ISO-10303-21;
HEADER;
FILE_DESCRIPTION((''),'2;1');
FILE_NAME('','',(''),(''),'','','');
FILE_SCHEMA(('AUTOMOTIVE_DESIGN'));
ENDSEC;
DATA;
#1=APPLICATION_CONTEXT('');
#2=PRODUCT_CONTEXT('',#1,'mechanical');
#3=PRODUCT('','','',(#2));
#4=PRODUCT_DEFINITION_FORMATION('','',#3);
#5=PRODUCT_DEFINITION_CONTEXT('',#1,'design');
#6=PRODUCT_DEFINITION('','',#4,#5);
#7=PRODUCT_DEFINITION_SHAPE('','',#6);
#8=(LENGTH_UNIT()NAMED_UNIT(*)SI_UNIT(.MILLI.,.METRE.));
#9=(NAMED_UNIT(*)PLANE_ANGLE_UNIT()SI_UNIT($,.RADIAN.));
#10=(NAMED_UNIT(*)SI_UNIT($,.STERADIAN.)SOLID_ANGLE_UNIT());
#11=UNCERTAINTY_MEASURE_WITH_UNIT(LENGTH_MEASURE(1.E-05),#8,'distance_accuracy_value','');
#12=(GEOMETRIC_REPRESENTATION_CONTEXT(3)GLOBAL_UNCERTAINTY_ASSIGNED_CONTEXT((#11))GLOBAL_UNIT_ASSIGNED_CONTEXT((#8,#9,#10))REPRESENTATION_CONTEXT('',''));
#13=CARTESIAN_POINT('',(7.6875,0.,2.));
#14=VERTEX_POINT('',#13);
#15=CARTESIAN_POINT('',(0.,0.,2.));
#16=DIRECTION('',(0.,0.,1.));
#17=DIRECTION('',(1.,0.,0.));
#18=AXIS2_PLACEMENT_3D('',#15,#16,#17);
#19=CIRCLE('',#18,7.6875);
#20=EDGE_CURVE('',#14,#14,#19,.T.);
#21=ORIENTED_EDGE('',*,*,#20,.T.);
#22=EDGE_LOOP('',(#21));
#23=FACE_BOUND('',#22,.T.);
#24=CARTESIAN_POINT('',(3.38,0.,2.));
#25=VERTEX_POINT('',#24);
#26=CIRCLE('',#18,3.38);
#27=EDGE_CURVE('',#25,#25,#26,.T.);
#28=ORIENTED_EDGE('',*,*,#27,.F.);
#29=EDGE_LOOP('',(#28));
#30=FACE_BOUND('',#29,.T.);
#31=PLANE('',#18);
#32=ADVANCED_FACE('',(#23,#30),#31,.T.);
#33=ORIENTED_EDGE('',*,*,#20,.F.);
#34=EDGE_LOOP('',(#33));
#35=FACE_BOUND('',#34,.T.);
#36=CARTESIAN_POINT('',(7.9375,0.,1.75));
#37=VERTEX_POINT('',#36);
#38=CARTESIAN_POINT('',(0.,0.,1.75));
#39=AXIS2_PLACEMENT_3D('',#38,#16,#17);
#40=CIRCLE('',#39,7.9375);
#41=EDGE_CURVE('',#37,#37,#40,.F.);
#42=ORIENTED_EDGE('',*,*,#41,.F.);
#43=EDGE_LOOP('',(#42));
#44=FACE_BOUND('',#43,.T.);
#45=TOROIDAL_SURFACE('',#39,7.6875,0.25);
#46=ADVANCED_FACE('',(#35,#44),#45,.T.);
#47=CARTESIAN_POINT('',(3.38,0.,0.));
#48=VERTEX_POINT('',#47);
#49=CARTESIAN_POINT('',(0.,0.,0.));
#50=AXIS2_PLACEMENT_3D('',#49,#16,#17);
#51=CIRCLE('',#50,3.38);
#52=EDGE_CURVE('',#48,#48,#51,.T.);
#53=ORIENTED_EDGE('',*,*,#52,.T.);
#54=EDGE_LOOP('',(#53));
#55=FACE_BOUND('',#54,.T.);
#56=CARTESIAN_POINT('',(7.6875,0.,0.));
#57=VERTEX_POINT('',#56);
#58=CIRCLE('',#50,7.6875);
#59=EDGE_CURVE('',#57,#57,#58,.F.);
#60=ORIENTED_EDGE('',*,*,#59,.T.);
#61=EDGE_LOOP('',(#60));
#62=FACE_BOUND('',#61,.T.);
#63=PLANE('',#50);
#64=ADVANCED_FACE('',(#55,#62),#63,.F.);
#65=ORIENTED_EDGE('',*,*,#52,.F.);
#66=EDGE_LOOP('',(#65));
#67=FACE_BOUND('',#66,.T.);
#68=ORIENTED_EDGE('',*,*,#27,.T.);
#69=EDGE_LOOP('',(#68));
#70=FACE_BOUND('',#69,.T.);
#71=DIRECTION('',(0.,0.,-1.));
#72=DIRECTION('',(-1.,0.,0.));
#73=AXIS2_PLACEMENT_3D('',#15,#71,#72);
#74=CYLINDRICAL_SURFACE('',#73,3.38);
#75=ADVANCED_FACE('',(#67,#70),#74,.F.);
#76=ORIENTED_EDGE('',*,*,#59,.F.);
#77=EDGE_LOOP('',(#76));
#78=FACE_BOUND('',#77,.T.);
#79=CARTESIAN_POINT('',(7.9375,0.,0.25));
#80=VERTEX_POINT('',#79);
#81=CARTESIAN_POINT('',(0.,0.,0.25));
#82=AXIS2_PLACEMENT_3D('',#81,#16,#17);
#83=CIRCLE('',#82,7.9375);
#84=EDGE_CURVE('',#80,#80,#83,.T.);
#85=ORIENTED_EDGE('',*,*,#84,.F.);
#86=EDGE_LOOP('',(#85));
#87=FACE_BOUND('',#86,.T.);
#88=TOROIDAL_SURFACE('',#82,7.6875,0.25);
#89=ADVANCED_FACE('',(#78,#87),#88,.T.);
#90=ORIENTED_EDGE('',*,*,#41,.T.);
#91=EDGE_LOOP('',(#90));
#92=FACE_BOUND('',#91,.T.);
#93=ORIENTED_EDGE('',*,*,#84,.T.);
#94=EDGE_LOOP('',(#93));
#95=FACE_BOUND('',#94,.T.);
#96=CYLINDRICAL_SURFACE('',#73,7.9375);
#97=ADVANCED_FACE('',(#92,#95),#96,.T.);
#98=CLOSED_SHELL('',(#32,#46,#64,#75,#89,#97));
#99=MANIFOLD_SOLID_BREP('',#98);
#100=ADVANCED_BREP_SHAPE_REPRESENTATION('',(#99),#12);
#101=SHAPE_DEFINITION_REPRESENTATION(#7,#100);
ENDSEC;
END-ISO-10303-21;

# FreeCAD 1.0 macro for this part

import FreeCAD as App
import Part
import Sketcher

V = App.Vector


def edges_at(feature, points):
    """Names of the edges that pass closest to the given points."""
    edges = feature.Shape.Edges
    near = lambda p: min(range(len(edges)), key=lambda i: edges[i].distToShape(Part.Vertex(*p))[0])
    return sorted({f"Edge{near(p) + 1}" for p in points})

doc = App.newDocument("Part")
params = doc.addObject("Spreadsheet::Sheet", "Params")
for row, (alias, value) in enumerate([
    ("sketch1_diameter", "6.76 mm"),
    ("pad1_length", "2 mm"),
    ("fillet_radius", "0.25 mm"),
], start=1):
    params.set(f"A{row}", alias)
    params.set(f"B{row}", "=" + value)
    params.setAlias(f"B{row}", alias)

body = doc.addObject("PartDesign::Body", "Body")

sketch1 = doc.addObject("Sketcher::SketchObject", "Sketch")
body.addObject(sketch1)
sketch1.AttachmentSupport = (doc.XY_Plane, [""])
sketch1.MapMode = "FlatFace"
sketch1.addGeometry([
    Part.Circle(V(0, 0, 0), V(0, 0, 1), 7.9),
    Part.Circle(V(0, 0, 0), V(0, 0, 1), 3.4),
], False)
sketch1.addConstraint([
    Sketcher.Constraint("Coincident", 0, 3, -1, 1),
    Sketcher.Constraint("Coincident", 1, 3, -1, 1),
    Sketcher.Constraint("Diameter", 1, 6.76),
    Sketcher.Constraint("Diameter", 0, 15.875),
])
sketch1.setExpression("Constraints[2]", "Params.sketch1_diameter")
pad1 = doc.addObject("PartDesign::Pad", "Pad")
body.addObject(pad1)
pad1.Profile = sketch1
pad1.setExpression("Length", "Params.pad1_length")
doc.recompute()

fillet = doc.addObject("PartDesign::Fillet", "Fillet")
body.addObject(fillet)
fillet.Base = (pad1, edges_at(pad1, [(-7.938, 0, 0), (-7.938, 0, 2)]))
fillet.setExpression("Radius", "Params.fillet_radius")

doc.recompute()
